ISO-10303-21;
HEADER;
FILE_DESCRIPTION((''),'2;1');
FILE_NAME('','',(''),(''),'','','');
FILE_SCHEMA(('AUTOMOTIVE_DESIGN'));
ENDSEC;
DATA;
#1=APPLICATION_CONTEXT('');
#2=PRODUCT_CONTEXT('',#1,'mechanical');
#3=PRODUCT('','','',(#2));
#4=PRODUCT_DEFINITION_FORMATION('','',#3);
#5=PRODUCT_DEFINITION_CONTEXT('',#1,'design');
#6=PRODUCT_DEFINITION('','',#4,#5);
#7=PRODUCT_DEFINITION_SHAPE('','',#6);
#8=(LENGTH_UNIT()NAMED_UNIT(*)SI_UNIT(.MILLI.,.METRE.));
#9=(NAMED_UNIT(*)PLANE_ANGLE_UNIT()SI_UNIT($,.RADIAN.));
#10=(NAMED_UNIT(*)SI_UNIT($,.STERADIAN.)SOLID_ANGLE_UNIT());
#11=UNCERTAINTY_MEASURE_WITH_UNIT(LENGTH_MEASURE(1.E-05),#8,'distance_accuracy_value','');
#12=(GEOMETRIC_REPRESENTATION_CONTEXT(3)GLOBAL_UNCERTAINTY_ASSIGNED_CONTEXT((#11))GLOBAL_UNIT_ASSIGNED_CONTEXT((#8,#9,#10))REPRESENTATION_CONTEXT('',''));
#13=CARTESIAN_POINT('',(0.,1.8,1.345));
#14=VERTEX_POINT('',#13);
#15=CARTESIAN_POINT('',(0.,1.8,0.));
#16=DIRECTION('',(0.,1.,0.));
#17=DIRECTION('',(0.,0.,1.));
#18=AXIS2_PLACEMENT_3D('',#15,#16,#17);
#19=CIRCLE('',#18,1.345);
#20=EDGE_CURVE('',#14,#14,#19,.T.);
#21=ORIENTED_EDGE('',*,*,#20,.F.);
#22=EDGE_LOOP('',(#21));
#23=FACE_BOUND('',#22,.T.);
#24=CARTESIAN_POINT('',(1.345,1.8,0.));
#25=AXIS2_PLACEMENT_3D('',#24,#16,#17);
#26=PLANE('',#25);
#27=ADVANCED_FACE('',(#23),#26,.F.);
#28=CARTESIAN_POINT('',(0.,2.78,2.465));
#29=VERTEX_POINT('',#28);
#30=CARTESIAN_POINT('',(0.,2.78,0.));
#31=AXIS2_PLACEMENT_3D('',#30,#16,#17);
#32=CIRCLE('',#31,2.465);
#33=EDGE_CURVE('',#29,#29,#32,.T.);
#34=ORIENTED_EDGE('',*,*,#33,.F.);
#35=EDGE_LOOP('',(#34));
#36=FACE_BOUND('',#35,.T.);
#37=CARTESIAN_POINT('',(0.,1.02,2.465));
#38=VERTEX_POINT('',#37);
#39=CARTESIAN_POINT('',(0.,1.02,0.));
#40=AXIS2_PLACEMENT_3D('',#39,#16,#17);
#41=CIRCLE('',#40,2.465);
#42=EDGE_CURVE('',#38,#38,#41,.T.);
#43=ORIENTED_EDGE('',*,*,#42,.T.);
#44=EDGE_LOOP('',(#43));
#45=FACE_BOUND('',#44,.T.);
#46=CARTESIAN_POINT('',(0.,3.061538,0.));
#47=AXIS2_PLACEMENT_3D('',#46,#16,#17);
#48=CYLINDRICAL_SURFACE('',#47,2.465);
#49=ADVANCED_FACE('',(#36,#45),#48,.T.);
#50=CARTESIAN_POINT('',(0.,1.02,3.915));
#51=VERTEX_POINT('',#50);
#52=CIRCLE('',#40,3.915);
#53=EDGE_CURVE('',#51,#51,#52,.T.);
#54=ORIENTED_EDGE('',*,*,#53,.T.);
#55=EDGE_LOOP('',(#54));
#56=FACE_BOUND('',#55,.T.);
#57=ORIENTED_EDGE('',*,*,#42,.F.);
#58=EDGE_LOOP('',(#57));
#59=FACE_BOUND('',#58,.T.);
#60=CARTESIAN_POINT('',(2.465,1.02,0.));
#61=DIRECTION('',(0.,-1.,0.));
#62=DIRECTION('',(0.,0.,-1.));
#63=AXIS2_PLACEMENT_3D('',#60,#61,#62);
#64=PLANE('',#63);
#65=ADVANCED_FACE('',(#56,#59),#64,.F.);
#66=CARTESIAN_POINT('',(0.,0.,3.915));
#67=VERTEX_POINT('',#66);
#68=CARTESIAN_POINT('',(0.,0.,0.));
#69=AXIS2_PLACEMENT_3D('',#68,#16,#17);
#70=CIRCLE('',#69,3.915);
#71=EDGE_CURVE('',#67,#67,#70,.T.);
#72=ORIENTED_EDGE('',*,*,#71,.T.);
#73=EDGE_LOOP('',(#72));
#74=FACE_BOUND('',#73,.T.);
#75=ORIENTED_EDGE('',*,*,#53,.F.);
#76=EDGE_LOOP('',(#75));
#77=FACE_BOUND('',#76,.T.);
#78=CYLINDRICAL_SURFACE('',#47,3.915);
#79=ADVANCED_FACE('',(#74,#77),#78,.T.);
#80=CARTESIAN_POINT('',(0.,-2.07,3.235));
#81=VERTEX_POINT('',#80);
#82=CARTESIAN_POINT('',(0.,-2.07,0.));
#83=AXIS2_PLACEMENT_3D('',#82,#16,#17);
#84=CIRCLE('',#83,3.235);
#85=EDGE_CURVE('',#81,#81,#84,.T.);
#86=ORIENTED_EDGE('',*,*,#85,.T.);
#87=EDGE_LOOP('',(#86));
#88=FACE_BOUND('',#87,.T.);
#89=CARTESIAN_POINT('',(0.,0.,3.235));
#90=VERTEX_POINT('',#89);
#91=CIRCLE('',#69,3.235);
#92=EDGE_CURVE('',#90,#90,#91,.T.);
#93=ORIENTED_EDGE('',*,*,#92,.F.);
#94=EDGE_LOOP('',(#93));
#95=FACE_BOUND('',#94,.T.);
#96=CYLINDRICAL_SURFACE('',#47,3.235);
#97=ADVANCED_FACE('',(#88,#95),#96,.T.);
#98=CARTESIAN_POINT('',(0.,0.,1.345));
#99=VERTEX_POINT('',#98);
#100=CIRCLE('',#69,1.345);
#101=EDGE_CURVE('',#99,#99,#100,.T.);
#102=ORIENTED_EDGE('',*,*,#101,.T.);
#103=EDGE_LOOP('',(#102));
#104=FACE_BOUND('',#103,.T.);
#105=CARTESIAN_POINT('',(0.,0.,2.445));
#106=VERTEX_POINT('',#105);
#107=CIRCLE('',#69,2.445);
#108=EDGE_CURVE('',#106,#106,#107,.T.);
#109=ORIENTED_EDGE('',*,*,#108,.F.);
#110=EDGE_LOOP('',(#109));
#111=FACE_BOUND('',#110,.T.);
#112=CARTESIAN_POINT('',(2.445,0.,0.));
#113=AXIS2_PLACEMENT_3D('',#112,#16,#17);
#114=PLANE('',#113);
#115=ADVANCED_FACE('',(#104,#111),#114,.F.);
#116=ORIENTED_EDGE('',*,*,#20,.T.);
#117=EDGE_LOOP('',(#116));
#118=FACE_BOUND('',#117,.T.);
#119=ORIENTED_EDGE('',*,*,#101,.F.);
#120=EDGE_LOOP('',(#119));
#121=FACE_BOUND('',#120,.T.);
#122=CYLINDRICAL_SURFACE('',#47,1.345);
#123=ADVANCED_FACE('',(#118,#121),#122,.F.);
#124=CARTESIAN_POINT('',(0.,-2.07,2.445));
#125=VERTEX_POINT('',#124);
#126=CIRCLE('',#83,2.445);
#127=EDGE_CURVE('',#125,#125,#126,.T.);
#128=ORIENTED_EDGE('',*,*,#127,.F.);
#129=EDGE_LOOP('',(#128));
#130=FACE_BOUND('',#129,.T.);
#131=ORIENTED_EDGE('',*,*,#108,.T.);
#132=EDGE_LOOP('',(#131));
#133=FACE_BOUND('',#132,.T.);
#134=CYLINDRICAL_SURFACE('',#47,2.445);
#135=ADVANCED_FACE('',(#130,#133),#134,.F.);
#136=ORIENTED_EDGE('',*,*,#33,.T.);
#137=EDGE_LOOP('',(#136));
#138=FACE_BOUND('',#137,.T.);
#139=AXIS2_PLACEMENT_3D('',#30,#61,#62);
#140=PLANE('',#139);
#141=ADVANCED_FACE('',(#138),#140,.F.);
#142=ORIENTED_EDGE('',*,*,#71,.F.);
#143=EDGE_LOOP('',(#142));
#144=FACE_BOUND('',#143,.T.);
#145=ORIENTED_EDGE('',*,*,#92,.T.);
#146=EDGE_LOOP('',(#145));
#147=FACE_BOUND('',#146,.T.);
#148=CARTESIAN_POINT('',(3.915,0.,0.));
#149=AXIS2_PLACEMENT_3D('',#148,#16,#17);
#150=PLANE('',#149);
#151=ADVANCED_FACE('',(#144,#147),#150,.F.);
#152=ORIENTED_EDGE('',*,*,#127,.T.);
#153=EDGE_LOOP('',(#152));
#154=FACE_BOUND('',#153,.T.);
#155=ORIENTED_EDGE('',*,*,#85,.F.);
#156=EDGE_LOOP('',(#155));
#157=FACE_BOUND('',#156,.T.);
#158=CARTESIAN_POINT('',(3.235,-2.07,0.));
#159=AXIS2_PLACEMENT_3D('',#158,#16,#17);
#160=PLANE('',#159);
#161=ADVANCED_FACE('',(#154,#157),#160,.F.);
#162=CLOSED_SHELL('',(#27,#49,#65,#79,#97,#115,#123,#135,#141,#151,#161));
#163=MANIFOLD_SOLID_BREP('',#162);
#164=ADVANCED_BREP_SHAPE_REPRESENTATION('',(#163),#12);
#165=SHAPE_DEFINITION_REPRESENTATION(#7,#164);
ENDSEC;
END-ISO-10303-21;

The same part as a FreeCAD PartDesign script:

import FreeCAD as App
import Part
import Sketcher


def add_polygon(sketch, points):
    """Adds a closed chain of lines whose ends are joined by coincident constraints."""
    first, n = sketch.GeometryCount, len(points)
    for a, b in zip(points, points[1:] + points[:1]):
        sketch.addGeometry(Part.LineSegment(App.Vector(*a, 0), App.Vector(*b, 0)), False)
    for i in range(n):
        sketch.addConstraint(Sketcher.Constraint("Coincident", first + i, 2, first + (i + 1) % n, 1))

doc = App.newDocument("Part")
params = doc.addObject("Spreadsheet::Sheet", "Params")
for row, (alias, value) in enumerate([
    ("sketch1_width", "1.1 mm"),
    ("sketch1_height", "1.8 mm"),
    ("sketch1_width2", "0.79 mm"),
    ("sketch1_width3", "0.68 mm"),
    ("sketch1_width4", "1.45 mm"),
    ("revolution_angle", "360 deg"),
], start=1):
    params.set(f"A{row}", alias)
    params.set(f"B{row}", "=" + value)
    params.setAlias(f"B{row}", alias)

body = doc.addObject("PartDesign::Body", "Body")

sketch1 = doc.addObject("Sketcher::SketchObject", "Sketch")
body.addObject(sketch1)
sketch1.AttachmentSupport = (doc.XY_Plane, [""])
sketch1.MapMode = "FlatFace"
add_polygon(sketch1, [(2.465, 2.78), (0, 2.78), (0, 1.8), (1.345, 1.8), (1.345, 0), (2.445, 0), (2.445, -2.07), (3.235, -2.07), (3.235, 0), (3.915, 0), (3.915, 1.02), (2.465, 1.02)])
sketch1.addConstraint([
    Sketcher.Constraint("Horizontal", 0),
    Sketcher.Constraint("Vertical", 1),
    Sketcher.Constraint("Horizontal", 2),
    Sketcher.Constraint("Vertical", 3),
    Sketcher.Constraint("Horizontal", 4),
    Sketcher.Constraint("Vertical", 5),
    Sketcher.Constraint("Horizontal", 6),
    Sketcher.Constraint("Vertical", 7),
    Sketcher.Constraint("Horizontal", 8),
    Sketcher.Constraint("Vertical", 9),
    Sketcher.Constraint("Horizontal", 10),
    Sketcher.Constraint("Vertical", 11),
    Sketcher.Constraint("PointOnObject", 0, 2, -2),
    Sketcher.Constraint("PointOnObject", 3, 2, -1),
    Sketcher.Constraint("PointOnObject", 7, 2, -1),
    Sketcher.Constraint("DistanceX", 4, 1, 4, 2, 1.1),
    Sketcher.Constraint("DistanceY", 3, 2, 3, 1, 1.8),
    Sketcher.Constraint("DistanceX", 6, 1, 6, 2, 0.79),
    Sketcher.Constraint("DistanceX", 8, 1, 8, 2, 0.68),
    Sketcher.Constraint("DistanceX", 10, 2, 10, 1, 1.45),
    Sketcher.Constraint("DistanceY", 1, 2, 1, 1, 0.98),
    Sketcher.Constraint("DistanceY", 5, 2, 5, 1, 2.07),
    Sketcher.Constraint("DistanceY", 9, 1, 9, 2, 1.02),
    Sketcher.Constraint("DistanceX", 0, 2, 0, 1, 2.465),
])
sketch1.setExpression("Constraints[27]", "Params.sketch1_width")
sketch1.setExpression("Constraints[28]", "Params.sketch1_height")
sketch1.setExpression("Constraints[29]", "Params.sketch1_width2")
sketch1.setExpression("Constraints[30]", "Params.sketch1_width3")
sketch1.setExpression("Constraints[31]", "Params.sketch1_width4")
revolution = doc.addObject("PartDesign::Revolution", "Revolution")
body.addObject(revolution)
revolution.Profile = sketch1
revolution.ReferenceAxis = (sketch1, ["V_Axis"])
revolution.setExpression("Angle", "Params.revolution_angle")

doc.recompute()
